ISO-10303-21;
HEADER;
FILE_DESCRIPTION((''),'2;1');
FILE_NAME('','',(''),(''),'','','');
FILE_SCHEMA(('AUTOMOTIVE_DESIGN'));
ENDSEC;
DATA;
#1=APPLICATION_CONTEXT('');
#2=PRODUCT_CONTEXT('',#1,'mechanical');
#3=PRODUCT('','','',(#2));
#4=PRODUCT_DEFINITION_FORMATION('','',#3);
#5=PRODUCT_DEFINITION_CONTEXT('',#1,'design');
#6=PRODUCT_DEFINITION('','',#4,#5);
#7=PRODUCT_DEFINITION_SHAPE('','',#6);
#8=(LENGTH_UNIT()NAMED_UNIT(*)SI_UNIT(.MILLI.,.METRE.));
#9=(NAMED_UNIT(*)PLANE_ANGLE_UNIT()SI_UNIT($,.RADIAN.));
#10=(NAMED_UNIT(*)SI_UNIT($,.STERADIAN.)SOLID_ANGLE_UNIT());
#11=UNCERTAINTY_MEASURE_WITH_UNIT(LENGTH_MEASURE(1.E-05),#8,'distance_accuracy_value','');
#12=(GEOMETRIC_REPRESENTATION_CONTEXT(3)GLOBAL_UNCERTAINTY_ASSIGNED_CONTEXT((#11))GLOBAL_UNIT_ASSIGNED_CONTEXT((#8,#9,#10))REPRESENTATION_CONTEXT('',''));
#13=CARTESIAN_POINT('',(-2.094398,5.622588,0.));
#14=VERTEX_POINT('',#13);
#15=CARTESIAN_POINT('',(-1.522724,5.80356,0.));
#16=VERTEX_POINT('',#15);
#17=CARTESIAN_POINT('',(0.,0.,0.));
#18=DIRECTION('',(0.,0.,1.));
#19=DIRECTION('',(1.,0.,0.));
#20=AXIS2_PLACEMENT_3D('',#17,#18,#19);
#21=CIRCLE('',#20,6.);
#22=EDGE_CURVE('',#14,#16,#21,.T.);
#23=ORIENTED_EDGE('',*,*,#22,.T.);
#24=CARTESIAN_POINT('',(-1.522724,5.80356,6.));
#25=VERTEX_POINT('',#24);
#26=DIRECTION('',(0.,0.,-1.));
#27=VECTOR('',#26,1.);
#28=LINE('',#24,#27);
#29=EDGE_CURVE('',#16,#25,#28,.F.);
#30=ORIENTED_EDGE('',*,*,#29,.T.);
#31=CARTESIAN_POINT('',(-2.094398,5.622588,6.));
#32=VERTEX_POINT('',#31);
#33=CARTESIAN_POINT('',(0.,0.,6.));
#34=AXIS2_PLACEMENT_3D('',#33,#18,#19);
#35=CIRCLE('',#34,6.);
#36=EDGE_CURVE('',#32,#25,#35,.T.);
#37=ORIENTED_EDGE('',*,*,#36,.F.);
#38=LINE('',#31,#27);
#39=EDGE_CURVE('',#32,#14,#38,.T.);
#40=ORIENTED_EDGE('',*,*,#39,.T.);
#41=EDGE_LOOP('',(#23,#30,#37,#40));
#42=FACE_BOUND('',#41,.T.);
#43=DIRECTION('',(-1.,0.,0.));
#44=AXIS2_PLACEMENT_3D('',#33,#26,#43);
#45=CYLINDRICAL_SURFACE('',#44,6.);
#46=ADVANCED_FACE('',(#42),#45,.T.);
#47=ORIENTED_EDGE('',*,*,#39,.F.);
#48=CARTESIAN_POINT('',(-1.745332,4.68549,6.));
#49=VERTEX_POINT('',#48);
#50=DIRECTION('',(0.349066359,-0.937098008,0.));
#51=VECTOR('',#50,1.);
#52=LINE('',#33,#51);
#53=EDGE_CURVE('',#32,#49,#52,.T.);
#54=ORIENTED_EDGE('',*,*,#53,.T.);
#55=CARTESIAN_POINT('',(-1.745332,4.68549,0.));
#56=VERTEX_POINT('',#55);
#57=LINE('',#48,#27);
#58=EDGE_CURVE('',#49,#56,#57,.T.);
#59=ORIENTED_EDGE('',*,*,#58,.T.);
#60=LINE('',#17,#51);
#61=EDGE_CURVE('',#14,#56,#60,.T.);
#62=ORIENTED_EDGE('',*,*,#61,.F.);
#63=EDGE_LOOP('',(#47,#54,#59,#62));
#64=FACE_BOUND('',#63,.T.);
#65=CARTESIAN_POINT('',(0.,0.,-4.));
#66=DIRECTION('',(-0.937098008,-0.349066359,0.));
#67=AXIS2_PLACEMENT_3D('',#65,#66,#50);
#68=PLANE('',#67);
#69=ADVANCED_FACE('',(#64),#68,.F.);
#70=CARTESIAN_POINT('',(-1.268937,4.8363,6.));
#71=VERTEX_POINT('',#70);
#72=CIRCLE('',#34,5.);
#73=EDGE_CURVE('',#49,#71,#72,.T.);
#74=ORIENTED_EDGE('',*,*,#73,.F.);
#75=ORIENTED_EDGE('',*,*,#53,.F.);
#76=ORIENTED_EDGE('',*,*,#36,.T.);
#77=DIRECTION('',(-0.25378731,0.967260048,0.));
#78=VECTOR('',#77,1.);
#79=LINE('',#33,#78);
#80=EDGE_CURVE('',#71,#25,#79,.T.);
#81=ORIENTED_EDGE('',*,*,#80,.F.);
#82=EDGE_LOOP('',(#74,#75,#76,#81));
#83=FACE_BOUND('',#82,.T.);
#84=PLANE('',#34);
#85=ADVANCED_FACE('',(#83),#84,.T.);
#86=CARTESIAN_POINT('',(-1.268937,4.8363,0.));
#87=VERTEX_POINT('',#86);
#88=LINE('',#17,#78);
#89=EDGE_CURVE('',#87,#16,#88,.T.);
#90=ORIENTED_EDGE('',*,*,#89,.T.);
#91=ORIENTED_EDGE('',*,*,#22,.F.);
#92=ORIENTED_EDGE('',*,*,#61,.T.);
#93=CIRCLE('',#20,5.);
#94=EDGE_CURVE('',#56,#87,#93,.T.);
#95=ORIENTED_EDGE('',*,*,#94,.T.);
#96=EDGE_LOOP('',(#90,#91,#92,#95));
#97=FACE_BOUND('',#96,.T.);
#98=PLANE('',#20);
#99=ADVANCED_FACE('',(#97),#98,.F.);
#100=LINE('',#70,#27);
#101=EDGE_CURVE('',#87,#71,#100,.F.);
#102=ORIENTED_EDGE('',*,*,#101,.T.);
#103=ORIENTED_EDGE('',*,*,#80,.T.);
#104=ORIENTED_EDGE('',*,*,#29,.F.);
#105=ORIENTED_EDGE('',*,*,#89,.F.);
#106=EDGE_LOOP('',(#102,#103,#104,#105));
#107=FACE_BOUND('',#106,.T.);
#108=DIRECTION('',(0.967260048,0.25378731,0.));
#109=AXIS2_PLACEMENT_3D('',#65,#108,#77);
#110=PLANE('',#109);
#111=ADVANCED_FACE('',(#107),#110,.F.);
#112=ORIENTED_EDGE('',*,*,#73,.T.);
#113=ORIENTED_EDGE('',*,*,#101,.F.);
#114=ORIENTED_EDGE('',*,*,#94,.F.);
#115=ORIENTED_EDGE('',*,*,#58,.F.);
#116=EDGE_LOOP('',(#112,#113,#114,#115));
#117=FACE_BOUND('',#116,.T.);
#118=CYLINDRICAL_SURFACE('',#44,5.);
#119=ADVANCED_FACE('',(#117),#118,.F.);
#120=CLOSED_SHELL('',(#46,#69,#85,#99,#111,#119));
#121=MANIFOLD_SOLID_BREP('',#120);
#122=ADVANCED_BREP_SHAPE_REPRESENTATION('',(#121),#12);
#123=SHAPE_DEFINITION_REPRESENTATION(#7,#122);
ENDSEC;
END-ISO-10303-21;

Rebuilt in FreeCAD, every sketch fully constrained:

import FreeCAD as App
import Part
import Sketcher

doc = App.newDocument("Part")
body = doc.addObject("PartDesign::Body", "Body")

# Sketch on XY plane
sketch1 = body.newObject("Sketcher::SketchObject", "Sketch")
sketch1.AttachmentSupport = (doc.getObject("XY_Plane"), [""])
sketch1.MapMode = "FlatFace"
sketch1.addGeometry([
    Part.Circle(App.Vector(0, 0, 0), App.Vector(0, 0, 1), 6),
    Part.Circle(App.Vector(0, 0, 0), App.Vector(0, 0, 1), 5),
], False)
sketch1.addConstraint([
    Sketcher.Constraint("Coincident", 0, 3, -1, 1),
    Sketcher.Constraint("Coincident", 1, 3, -1, 1),
    Sketcher.Constraint("Diameter", 0, 12.0),
    Sketcher.Constraint("Diameter", 1, 10.0),
])
pad1 = body.newObject("PartDesign::Pad", "Pad")
pad1.Profile = sketch1
pad1.Length = 6

# Sketch on XY plane
sketch2 = body.newObject("Sketcher::SketchObject", "Sketch001")
sketch2.AttachmentSupport = (doc.getObject("XY_Plane"), [""])
sketch2.MapMode = "FlatFace"
sketch2.AttachmentOffset = App.Placement(App.Vector(0, 0, 6), App.Rotation())
sketch2.addGeometry([
    Part.LineSegment(App.Vector(-3.579836, 9.610371, 0), App.Vector(0, 0, 0)),
    Part.LineSegment(App.Vector(0, 0, 0), App.Vector(-2.615769, 9.969484, 0)),
    Part.LineSegment(App.Vector(-2.615769, 9.969484, 0), App.Vector(-3.579836, 9.610371, 0)),
], False)
sketch2.addConstraint([
    Sketcher.Constraint("Coincident", 0, 2, 1, 1),
    Sketcher.Constraint("Coincident", 1, 2, 2, 1),
    Sketcher.Constraint("Coincident", 2, 2, 0, 1),
    Sketcher.Constraint("Coincident", 0, 2, -1, 1),
    Sketcher.Constraint("Perpendicular", 0, 2),
    Sketcher.Constraint("Distance", 0, 10.25546),
    Sketcher.Constraint("Distance", 2, 1.02878),
    Sketcher.Constraint("DistanceX", 1, 2, -1, 1, 2.615769),
])
pocket1 = body.newObject("PartDesign::Pocket", "Pocket")
pocket1.Profile = sketch2
pocket1.Length = 10

doc.recompute()
